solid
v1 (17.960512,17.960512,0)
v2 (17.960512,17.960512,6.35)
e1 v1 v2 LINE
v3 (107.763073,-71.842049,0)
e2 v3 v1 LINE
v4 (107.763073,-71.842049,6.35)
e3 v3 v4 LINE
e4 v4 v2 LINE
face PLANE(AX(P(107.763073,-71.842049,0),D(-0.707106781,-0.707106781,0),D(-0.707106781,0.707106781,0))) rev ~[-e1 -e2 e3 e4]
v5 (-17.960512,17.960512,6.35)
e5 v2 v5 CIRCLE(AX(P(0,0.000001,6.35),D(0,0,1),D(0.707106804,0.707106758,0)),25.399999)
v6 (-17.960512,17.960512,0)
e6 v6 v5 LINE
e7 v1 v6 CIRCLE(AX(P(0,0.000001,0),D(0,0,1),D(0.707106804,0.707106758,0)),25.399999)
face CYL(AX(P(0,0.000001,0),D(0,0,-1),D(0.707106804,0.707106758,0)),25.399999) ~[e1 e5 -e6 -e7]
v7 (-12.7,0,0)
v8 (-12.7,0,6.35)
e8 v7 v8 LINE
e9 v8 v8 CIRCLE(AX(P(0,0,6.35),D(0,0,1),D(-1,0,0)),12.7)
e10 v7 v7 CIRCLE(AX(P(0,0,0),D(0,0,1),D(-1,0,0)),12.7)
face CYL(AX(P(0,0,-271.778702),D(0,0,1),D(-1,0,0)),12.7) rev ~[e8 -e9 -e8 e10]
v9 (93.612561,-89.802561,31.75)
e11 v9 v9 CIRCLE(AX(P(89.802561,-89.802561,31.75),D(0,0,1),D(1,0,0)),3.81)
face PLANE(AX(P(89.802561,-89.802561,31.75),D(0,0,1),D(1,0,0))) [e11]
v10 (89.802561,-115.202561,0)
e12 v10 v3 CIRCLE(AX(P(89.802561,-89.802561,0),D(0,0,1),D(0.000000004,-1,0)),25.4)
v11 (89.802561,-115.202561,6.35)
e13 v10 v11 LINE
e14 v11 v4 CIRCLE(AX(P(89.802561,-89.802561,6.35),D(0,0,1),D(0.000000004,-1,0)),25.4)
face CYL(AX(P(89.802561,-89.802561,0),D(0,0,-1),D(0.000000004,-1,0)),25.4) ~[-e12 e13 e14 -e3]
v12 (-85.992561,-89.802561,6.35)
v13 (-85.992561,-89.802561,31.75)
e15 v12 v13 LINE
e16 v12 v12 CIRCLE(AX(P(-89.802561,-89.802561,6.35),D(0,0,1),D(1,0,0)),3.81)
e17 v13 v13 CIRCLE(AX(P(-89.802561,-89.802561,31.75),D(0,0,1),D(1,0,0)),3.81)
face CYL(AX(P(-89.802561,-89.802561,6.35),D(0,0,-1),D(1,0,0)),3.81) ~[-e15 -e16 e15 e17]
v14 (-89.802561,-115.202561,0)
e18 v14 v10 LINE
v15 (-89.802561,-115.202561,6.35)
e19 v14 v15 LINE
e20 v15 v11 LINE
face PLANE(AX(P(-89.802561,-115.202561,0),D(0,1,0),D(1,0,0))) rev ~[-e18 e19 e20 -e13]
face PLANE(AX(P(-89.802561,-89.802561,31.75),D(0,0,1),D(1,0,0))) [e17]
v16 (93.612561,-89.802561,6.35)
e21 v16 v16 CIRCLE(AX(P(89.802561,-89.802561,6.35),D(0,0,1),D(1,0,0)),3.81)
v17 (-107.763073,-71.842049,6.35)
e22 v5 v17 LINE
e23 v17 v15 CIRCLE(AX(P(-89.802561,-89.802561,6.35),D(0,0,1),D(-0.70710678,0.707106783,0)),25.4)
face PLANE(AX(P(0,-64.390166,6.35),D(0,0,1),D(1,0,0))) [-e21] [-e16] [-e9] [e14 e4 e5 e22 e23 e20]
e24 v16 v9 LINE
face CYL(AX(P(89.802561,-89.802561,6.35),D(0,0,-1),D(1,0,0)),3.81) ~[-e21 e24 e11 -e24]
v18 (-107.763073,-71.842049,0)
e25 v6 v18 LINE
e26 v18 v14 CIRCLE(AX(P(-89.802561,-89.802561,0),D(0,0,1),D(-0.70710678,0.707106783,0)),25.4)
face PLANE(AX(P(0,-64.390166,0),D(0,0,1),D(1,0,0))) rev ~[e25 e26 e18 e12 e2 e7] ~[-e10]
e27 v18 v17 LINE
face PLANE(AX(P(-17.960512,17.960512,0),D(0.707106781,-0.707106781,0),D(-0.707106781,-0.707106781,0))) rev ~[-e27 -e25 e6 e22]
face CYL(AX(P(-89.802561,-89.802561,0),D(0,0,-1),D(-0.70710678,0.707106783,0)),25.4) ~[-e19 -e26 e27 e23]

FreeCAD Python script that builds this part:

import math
import FreeCAD as App
import Part
import Sketcher

V = App.Vector
Q = App.Units.Quantity

doc = App.newDocument("Part")
body = doc.addObject("PartDesign::Body", "Body")

# Sketch on XY plane
sketch1 = body.newObject("Sketcher::SketchObject", "Sketch")
sketch1.AttachmentSupport = (doc.getObject("XY_Plane"), [""])
sketch1.MapMode = "FlatFace"
sketch1.addGeometry(Part.ArcOfCircle(Part.Circle(V(90, -90, 0), V(0, 0, 1), 25), math.radians(-90), math.radians(45)), False)
sketch1.addGeometry(Part.LineSegment(V(108, -72, 0), V(18, 18, 0)), False)
sketch1.addGeometry(Part.ArcOfCircle(Part.Circle(V(0, 0, 0), V(0, 0, 1), 25), math.radians(45), math.radians(135)), False)
sketch1.addGeometry(Part.LineSegment(V(-18, 18, 0), V(-108, -72, 0)), False)
sketch1.addGeometry(Part.ArcOfCircle(Part.Circle(V(-90, -90, 0), V(0, 0, 1), 25), math.radians(135), math.radians(270)), False)
sketch1.addGeometry(Part.LineSegment(V(-90, -115, 0), V(90, -115, 0)), False)
sketch1.addConstraint(Sketcher.Constraint("Tangent", 0, 2, 1, 1))
sketch1.addConstraint(Sketcher.Constraint("Tangent", 1, 2, 2, 1))
sketch1.addConstraint(Sketcher.Constraint("Tangent", 2, 2, 3, 1))
sketch1.addConstraint(Sketcher.Constraint("Tangent", 3, 2, 4, 1))
sketch1.addConstraint(Sketcher.Constraint("Tangent", 4, 2, 5, 1))
sketch1.addConstraint(Sketcher.Constraint("Tangent", 5, 2, 0, 1))
sketch1.addConstraint(Sketcher.Constraint("Horizontal", 5))
sketch1.addConstraint(Sketcher.Constraint("Coincident", 2, 3, -1, 1))
sketch1.addConstraint(Sketcher.Constraint("Equal", 0, 2))
sketch1.addConstraint(Sketcher.Constraint("Equal", 2, 4))
sketch1.addConstraint(Sketcher.Constraint("Perpendicular", 1, 3))
sketch1.addConstraint(Sketcher.Constraint("Horizontal", 1, 2, 2, 2))
sketch1.addConstraint(Sketcher.Constraint("Radius", 0, Q("1 in")))
sketch1.addConstraint(Sketcher.Constraint("Distance", 1, Q("5 in")))
pad1 = body.newObject("PartDesign::Pad", "Pad")
pad1.Profile = sketch1
pad1.Length = Q("0.25 in")

# Sketch on XY plane
sketch2 = body.newObject("Sketcher::SketchObject", "Sketch001")
sketch2.AttachmentSupport = (doc.getObject("XY_Plane"), [""])
sketch2.MapMode = "FlatFace"
sketch2.AttachmentOffset = App.Placement(V(0, 0, 0.25 * 25.4), App.Rotation())
sketch2.addGeometry(Part.Circle(V(89.8, -89.8, 0), V(0, 0, 1), 3.8), False)
sketch2.addGeometry(Part.Circle(V(-89.8, -89.8, 0), V(0, 0, 1), 3.8), False)
sketch2.addConstraint(Sketcher.Constraint("Equal", 0, 1))
sketch2.addConstraint(Sketcher.Constraint("Symmetric", 0, 3, 1, 3, -2))
sketch2.addConstraint(Sketcher.Constraint("Diameter", 0, Q("0.3 in")))
sketch2.addConstraint(Sketcher.Constraint("DistanceX", -1, 1, 0, 3, Q("89.802561 mm")))
sketch2.addConstraint(Sketcher.Constraint("DistanceY", 0, 3, -1, 1, Q("89.802561 mm")))
pad2 = body.newObject("PartDesign::Pad", "Pad001")
pad2.Profile = sketch2
pad2.Length = Q("1 in")

# Sketch on XY plane
sketch3 = body.newObject("Sketcher::SketchObject", "Sketch002")
sketch3.AttachmentSupport = (doc.getObject("XY_Plane"), [""])
sketch3.MapMode = "FlatFace"
sketch3.addGeometry(Part.Circle(V(0, 0, 0), V(0, 0, 1), 13), False)
sketch3.addConstraint(Sketcher.Constraint("Coincident", 0, 3, -1, 1))
sketch3.addConstraint(Sketcher.Constraint("Diameter", 0, Q("1 in")))
doc.recompute()
hole = body.newObject("PartDesign::Hole", "Hole")
hole.Profile = sketch3
hole.ThreadType = "None"
hole.Diameter = Q("1 in")
hole.DepthType = "ThroughAll"
hole.Reversed = True

doc.recompute()
